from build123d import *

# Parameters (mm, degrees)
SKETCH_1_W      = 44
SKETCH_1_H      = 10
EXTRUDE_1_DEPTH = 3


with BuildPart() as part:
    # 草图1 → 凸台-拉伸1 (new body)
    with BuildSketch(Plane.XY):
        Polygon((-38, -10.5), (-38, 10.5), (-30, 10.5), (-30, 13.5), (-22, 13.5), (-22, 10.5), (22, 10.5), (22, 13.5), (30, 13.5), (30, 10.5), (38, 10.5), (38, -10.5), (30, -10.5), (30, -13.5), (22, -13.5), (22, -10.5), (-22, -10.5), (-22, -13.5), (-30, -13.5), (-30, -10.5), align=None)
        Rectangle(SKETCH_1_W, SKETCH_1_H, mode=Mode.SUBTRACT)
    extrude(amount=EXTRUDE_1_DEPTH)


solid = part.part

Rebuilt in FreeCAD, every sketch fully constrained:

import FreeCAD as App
import Part
import Sketcher
from FreeCAD import Vector


def add_polygon(sketch, points):
    """Adds a closed chain of lines whose ends are joined by coincident constraints."""
    first, n = sketch.GeometryCount, len(points)
    for a, b in zip(points, points[1:] + points[:1]):
        sketch.addGeometry(Part.LineSegment(App.Vector(*a, 0), App.Vector(*b, 0)), False)
    for i in range(n):
        sketch.addConstraint(Sketcher.Constraint("Coincident", first + i, 2, first + (i + 1) % n, 1))

doc = App.newDocument("Part")
body = doc.addObject("PartDesign::Body", "Body")

sketch1 = body.newObject("Sketcher::SketchObject", "Sketch")
sketch1.AttachmentSupport = (doc.getObject("XY_Plane"), [""])
sketch1.MapMode = "FlatFace"
add_polygon(sketch1, [(-38, 10.5), (-38, -10.5), (-30, -10.5), (-30, -13.5), (-22, -13.5), (-22, -10.5), (22, -10.5), (22, -13.5), (30, -13.5), (30, -10.5), (38, -10.5), (38, 10.5), (30, 10.5), (30, 13.5), (22, 13.5), (22, 10.5), (-22, 10.5), (-22, 13.5), (-30, 13.5), (-30, 10.5)])
add_polygon(sketch1, [(-22, -5), (-22, 5), (22, 5), (22, -5)])
sketch1.addConstraint([
    Sketcher.Constraint("Vertical", 0),
    Sketcher.Constraint("Horizontal", 1),
    Sketcher.Constraint("Vertical", 2),
    Sketcher.Constraint("Horizontal", 3),
    Sketcher.Constraint("Vertical", 4),
    Sketcher.Constraint("Horizontal", 5),
    Sketcher.Constraint("Vertical", 6),
    Sketcher.Constraint("Horizontal", 7),
    Sketcher.Constraint("Vertical", 8),
    Sketcher.Constraint("Horizontal", 9),
    Sketcher.Constraint("Vertical", 10),
    Sketcher.Constraint("Horizontal", 11),
    Sketcher.Constraint("Vertical", 12),
    Sketcher.Constraint("Horizontal", 13),
    Sketcher.Constraint("Vertical", 14),
    Sketcher.Constraint("Horizontal", 15),
    Sketcher.Constraint("Vertical", 16),
    Sketcher.Constraint("Horizontal", 17),
    Sketcher.Constraint("Vertical", 18),
    Sketcher.Constraint("Horizontal", 19),
    Sketcher.Constraint("Vertical", 20),
    Sketcher.Constraint("Horizontal", 21),
    Sketcher.Constraint("Vertical", 22),
    Sketcher.Constraint("Horizontal", 23),
    Sketcher.Constraint("Symmetric", 0, 2, 10, 2, -1, 1),
    Sketcher.Constraint("Symmetric", 2, 2, 12, 2, -1, 1),
    Sketcher.Constraint("Symmetric", 4, 2, 14, 2, -1, 1),
    Sketcher.Constraint("Symmetric", 6, 2, 16, 2, -1, 1),
    Sketcher.Constraint("Symmetric", 8, 2, 18, 2, -1, 1),
    Sketcher.Constraint("Symmetric", 20, 2, 22, 2, -1, 1),
    Sketcher.Constraint("Symmetric", 3, 2, 6, 2, -2),
    Sketcher.Constraint("Symmetric", 1, 2, 8, 2, -2),
    Sketcher.Constraint("Horizontal", 1, 2, 4, 2),
    Sketcher.Constraint("Vertical", 16, 2, 20, 2),
    Sketcher.Constraint("Equal", 1, 3),
    Sketcher.Constraint("DistanceX", 1, 1, 1, 2, 8.0),
    Sketcher.Constraint("DistanceX", 5, 1, 5, 2, 44.0),
    Sketcher.Constraint("DistanceY", 0, 2, 0, 1, 21.0),
    Sketcher.Constraint("DistanceY", 2, 2, 2, 1, 3.0),
    Sketcher.Constraint("DistanceY", 20, 1, 20, 2, 10.0),
])
pad1 = body.newObject("PartDesign::Pad", "Pad")
pad1.Profile = sketch1
pad1.Length = 3

doc.recompute()
